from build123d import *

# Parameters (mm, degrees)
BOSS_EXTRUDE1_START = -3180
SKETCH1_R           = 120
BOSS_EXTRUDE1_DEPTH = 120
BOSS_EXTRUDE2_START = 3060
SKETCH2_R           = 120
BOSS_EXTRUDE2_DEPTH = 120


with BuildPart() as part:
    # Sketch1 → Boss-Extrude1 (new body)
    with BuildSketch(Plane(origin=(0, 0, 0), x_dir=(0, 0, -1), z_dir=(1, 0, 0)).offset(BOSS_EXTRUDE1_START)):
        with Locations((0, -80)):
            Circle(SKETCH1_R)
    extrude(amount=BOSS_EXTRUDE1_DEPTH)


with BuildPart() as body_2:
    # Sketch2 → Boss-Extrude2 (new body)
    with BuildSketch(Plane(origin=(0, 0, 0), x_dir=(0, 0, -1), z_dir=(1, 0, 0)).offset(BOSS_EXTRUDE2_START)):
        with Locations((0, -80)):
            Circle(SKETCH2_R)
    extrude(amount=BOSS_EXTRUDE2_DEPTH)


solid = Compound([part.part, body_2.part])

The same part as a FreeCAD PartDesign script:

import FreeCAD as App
import Part
import Sketcher
from FreeCAD import Vector

doc = App.newDocument("Part")
body = doc.addObject("PartDesign::Body", "Body")

sketch1 = body.newObject("Sketcher::SketchObject", "Sketch")
sketch1.AttachmentSupport = (doc.getObject("YZ_Plane"), [""])
sketch1.MapMode = "FlatFace"
sketch1.AttachmentOffset = App.Placement(Vector(0, 0, -3180), App.Rotation())
sketch1.addGeometry(Part.Circle(Vector(-80, 0, 0), Vector(0, 0, 1), 120), False)
sketch1.addConstraint([
    Sketcher.Constraint("PointOnObject", 0, 3, -1),
    Sketcher.Constraint("Diameter", 0, 240.0),
    Sketcher.Constraint("DistanceX", 0, 3, -1, 1, 80.0),
])
pad1 = body.newObject("PartDesign::Pad", "Pad")
pad1.Profile = sketch1
pad1.Length = 120
body2 = doc.addObject("PartDesign::Body", "Body001")

sketch2 = body2.newObject("Sketcher::SketchObject", "Sketch001")
sketch2.AttachmentSupport = (doc.getObject("YZ_Plane001"), [""])
sketch2.MapMode = "FlatFace"
sketch2.AttachmentOffset = App.Placement(Vector(0, 0, 3060), App.Rotation())
sketch2.addGeometry(Part.Circle(Vector(-80, 0, 0), Vector(0, 0, 1), 120), False)
sketch2.addConstraint([
    Sketcher.Constraint("PointOnObject", 0, 3, -1),
    Sketcher.Constraint("Diameter", 0, 240.0),
    Sketcher.Constraint("DistanceX", 0, 3, -1, 1, 80.0),
])
pad2 = body2.newObject("PartDesign::Pad", "Pad001")
pad2.Profile = sketch2
pad2.Length = 120

doc.recompute()
